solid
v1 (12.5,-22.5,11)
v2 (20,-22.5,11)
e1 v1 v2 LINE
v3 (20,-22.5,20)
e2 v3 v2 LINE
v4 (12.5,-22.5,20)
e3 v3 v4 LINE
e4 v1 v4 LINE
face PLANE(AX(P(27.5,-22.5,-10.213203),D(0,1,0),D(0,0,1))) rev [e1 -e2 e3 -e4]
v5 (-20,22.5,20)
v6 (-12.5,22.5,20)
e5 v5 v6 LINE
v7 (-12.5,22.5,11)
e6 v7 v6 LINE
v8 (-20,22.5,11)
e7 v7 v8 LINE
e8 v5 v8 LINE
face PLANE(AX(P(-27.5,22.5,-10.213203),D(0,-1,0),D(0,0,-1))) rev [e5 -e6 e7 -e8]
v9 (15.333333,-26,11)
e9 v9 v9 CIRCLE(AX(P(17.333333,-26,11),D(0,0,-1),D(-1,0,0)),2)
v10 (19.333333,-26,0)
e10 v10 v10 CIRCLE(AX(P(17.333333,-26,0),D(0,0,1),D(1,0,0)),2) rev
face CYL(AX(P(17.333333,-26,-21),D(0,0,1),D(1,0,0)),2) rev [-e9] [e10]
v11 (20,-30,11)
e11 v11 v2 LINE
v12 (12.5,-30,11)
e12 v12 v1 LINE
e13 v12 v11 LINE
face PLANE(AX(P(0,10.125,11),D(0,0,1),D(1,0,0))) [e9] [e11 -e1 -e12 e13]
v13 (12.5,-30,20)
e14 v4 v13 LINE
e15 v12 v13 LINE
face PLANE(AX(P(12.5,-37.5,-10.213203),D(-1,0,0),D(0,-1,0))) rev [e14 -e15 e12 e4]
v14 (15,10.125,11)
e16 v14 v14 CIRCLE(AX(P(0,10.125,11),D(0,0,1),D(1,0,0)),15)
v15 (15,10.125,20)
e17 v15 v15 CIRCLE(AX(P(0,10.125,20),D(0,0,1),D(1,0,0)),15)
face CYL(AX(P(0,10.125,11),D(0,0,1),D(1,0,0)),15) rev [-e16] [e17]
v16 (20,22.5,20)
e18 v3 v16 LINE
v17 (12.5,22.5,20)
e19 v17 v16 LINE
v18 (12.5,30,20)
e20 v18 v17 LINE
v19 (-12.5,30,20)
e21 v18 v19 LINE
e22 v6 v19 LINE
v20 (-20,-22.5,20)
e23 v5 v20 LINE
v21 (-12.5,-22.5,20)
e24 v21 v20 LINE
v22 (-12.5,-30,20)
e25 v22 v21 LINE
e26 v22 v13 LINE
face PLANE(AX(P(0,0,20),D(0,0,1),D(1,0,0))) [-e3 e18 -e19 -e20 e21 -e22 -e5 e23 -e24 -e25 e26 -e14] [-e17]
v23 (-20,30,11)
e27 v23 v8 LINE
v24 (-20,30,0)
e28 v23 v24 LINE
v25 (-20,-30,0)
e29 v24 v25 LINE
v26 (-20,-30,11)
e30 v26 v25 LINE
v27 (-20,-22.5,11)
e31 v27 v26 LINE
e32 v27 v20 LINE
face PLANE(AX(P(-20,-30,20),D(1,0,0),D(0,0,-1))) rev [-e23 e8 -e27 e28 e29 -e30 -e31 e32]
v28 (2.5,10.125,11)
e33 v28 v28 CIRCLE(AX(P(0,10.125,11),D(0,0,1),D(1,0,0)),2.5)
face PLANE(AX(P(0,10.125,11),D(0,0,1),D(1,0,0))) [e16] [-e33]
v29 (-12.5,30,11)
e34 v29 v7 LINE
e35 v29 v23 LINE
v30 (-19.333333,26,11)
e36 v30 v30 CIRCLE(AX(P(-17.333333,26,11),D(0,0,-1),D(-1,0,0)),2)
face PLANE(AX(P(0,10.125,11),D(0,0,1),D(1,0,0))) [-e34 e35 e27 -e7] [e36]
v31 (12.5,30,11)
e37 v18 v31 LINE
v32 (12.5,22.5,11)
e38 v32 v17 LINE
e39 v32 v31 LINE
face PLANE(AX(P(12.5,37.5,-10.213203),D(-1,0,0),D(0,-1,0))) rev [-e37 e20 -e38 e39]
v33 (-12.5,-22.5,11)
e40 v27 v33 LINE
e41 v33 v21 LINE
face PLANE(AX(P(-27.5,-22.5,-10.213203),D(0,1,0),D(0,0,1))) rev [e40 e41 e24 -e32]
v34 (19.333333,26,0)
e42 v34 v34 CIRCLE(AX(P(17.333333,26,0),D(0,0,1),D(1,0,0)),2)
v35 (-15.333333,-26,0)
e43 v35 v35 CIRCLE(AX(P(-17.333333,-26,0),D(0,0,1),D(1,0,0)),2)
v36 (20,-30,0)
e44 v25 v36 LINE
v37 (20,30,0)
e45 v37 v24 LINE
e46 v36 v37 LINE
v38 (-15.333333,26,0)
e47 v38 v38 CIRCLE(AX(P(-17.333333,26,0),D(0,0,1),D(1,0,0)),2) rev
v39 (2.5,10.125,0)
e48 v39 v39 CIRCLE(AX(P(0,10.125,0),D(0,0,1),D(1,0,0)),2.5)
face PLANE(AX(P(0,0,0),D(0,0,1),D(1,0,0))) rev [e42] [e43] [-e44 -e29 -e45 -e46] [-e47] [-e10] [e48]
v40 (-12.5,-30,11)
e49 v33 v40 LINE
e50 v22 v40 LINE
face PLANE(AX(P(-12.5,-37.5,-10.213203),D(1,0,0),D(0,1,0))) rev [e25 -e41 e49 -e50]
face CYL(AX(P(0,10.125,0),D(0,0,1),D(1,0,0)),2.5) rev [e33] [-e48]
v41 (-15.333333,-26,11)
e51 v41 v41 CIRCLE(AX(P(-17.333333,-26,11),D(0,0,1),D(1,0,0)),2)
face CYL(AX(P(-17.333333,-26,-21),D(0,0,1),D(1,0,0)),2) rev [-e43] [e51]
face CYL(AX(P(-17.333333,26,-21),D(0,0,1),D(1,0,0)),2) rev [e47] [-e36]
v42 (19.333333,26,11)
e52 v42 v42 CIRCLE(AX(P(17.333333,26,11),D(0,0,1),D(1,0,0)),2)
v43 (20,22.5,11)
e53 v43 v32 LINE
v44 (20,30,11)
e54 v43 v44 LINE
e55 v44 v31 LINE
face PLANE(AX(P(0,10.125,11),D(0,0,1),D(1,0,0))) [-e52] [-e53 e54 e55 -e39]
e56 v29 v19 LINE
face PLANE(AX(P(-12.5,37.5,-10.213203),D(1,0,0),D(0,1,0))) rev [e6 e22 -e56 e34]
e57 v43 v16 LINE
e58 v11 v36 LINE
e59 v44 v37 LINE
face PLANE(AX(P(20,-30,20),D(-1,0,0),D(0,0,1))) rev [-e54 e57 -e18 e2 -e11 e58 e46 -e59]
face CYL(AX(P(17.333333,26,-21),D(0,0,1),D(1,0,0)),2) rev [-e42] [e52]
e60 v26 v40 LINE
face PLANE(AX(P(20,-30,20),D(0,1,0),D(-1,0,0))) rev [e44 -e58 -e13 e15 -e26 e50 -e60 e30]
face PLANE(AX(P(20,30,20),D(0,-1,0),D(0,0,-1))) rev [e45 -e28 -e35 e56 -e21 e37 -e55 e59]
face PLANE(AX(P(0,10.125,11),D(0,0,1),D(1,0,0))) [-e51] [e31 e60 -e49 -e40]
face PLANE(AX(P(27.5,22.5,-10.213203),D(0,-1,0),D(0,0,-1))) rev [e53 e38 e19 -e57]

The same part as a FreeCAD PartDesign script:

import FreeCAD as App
import Part
import Sketcher
from FreeCAD import Vector

doc = App.newDocument("Part")
params = doc.addObject("Spreadsheet::Sheet", "Params")
for row, (alias, value) in enumerate([
    ("sketch1_width", "40 mm"),
    ("sketch1_height", "60 mm"),
    ("pad1_length", "20 mm"),
    ("sketch2_diameter", "30 mm"),
    ("pocket1_length", "9 mm"),
    ("sketch3_diameter", "4 mm"),
    ("pocket2_length", "32 mm"),
    ("sketch4_width", "15 mm"),
    ("pocket3_length", "9 mm"),
    ("sketch5_diameter", "5 mm"),
    ("pocket4_length", "11 mm"),
], start=1):
    params.set(f"A{row}", alias)
    params.set(f"B{row}", "=" + value)
    params.setAlias(f"B{row}", alias)

body = doc.addObject("PartDesign::Body", "Body")

sketch1 = body.newObject("Sketcher::SketchObject", "Sketch")
sketch1.AttachmentSupport = (doc.getObject("XY_Plane"), [""])
sketch1.MapMode = "FlatFace"
sketch1.addGeometry(Part.LineSegment(Vector(-20, 30, 0), Vector(-20, -30, 0)), False)
sketch1.addGeometry(Part.LineSegment(Vector(-20, -30, 0), Vector(20, -30, 0)), False)
sketch1.addGeometry(Part.LineSegment(Vector(20, -30, 0), Vector(20, 30, 0)), False)
sketch1.addGeometry(Part.LineSegment(Vector(20, 30, 0), Vector(-20, 30, 0)), False)
sketch1.addConstraint(Sketcher.Constraint("Coincident", 0, 2, 1, 1))
sketch1.addConstraint(Sketcher.Constraint("Coincident", 1, 2, 2, 1))
sketch1.addConstraint(Sketcher.Constraint("Coincident", 2, 2, 3, 1))
sketch1.addConstraint(Sketcher.Constraint("Coincident", 3, 2, 0, 1))
sketch1.addConstraint(Sketcher.Constraint("Vertical", 0))
sketch1.addConstraint(Sketcher.Constraint("Horizontal", 1))
sketch1.addConstraint(Sketcher.Constraint("Vertical", 2))
sketch1.addConstraint(Sketcher.Constraint("Horizontal", 3))
sketch1.addConstraint(Sketcher.Constraint("Symmetric", 0, 2, 2, 2, -1, 1))
sketch1.addConstraint(Sketcher.Constraint("DistanceX", 1, 1, 1, 2, 40.0))
sketch1.addConstraint(Sketcher.Constraint("DistanceY", 0, 2, 0, 1, 60.0))
sketch1.setExpression("Constraints[9]", "Params.sketch1_width")
sketch1.setExpression("Constraints[10]", "Params.sketch1_height")
pad1 = body.newObject("PartDesign::Pad", "Pad")
pad1.Profile = sketch1
pad1.setExpression("Length", "Params.pad1_length")

sketch2 = body.newObject("Sketcher::SketchObject", "Sketch001")
sketch2.AttachmentSupport = (doc.getObject("XY_Plane"), [""])
sketch2.MapMode = "FlatFace"
sketch2.AttachmentOffset = App.Placement(Vector(0, 0, 20), App.Rotation())
sketch2.addGeometry(Part.Circle(Vector(0, 10, 0), Vector(0, 0, 1), 15), False)
sketch2.addConstraint(Sketcher.Constraint("PointOnObject", 0, 3, -2))
sketch2.addConstraint(Sketcher.Constraint("Diameter", 0, 30.0))
sketch2.addConstraint(Sketcher.Constraint("DistanceY", -1, 1, 0, 3, 10.125))
sketch2.setExpression("Constraints[1]", "Params.sketch2_diameter")
pocket1 = body.newObject("PartDesign::Pocket", "Pocket")
pocket1.Profile = sketch2
pocket1.setExpression("Length", "Params.pocket1_length")

sketch3 = body.newObject("Sketcher::SketchObject", "Sketch002")
sketch3.AttachmentSupport = (doc.getObject("XY_Plane"), [""])
sketch3.MapMode = "FlatFace"
sketch3.AttachmentOffset = App.Placement(Vector(0, 0, 11), App.Rotation())
sketch3.addGeometry(Part.Circle(Vector(17.3, 26, 0), Vector(0, 0, 1), 2), False)
sketch3.addGeometry(Part.Circle(Vector(-17.3, 26, 0), Vector(0, 0, 1), 2), False)
sketch3.addGeometry(Part.Circle(Vector(17.3, -26, 0), Vector(0, 0, 1), 2), False)
sketch3.addGeometry(Part.Circle(Vector(-17.3, -26, 0), Vector(0, 0, 1), 2), False)
sketch3.addConstraint(Sketcher.Constraint("Equal", 0, 1))
sketch3.addConstraint(Sketcher.Constraint("Equal", 1, 2))
sketch3.addConstraint(Sketcher.Constraint("Equal", 2, 3))
sketch3.addConstraint(Sketcher.Constraint("Symmetric", 1, 3, 2, 3, -1, 1))
sketch3.addConstraint(Sketcher.Constraint("Symmetric", 0, 3, 3, 3, -1, 1))
sketch3.addConstraint(Sketcher.Constraint("Symmetric", 0, 3, 1, 3, -2))
sketch3.addConstraint(Sketcher.Constraint("Diameter", 0, 4.0))
sketch3.addConstraint(Sketcher.Constraint("DistanceY", -1, 1, 0, 3, 26.0))
sketch3.addConstraint(Sketcher.Constraint("DistanceX", -1, 1, 0, 3, 17.333333))
sketch3.setExpression("Constraints[6]", "Params.sketch3_diameter")
pocket2 = body.newObject("PartDesign::Pocket", "Pocket001")
pocket2.Profile = sketch3
pocket2.setExpression("Length", "Params.pocket2_length")

sketch4 = body.newObject("Sketcher::SketchObject", "Sketch003")
sketch4.AttachmentSupport = (doc.getObject("XY_Plane"), [""])
sketch4.MapMode = "FlatFace"
sketch4.AttachmentOffset = App.Placement(Vector(0, 0, 20), App.Rotation())
sketch4.addGeometry(Part.LineSegment(Vector(-28, 38, 0), Vector(-28, 22, 0)), False)
sketch4.addGeometry(Part.LineSegment(Vector(-28, 22, 0), Vector(-12, 22, 0)), False)
sketch4.addGeometry(Part.LineSegment(Vector(-12, 22, 0), Vector(-12, 38, 0)), False)
sketch4.addGeometry(Part.LineSegment(Vector(-12, 38, 0), Vector(-28, 38, 0)), False)
sketch4.addGeometry(Part.LineSegment(Vector(12, 38, 0), Vector(12, 22, 0)), False)
sketch4.addGeometry(Part.LineSegment(Vector(12, 22, 0), Vector(28, 22, 0)), False)
sketch4.addGeometry(Part.LineSegment(Vector(28, 22, 0), Vector(28, 38, 0)), False)
sketch4.addGeometry(Part.LineSegment(Vector(28, 38, 0), Vector(12, 38, 0)), False)
sketch4.addGeometry(Part.LineSegment(Vector(-28, -22, 0), Vector(-28, -38, 0)), False)
sketch4.addGeometry(Part.LineSegment(Vector(-28, -38, 0), Vector(-12, -38, 0)), False)
sketch4.addGeometry(Part.LineSegment(Vector(-12, -38, 0), Vector(-12, -22, 0)), False)
sketch4.addGeometry(Part.LineSegment(Vector(-12, -22, 0), Vector(-28, -22, 0)), False)
sketch4.addGeometry(Part.LineSegment(Vector(12, -22, 0), Vector(12, -38, 0)), False)
sketch4.addGeometry(Part.LineSegment(Vector(12, -38, 0), Vector(28, -38, 0)), False)
sketch4.addGeometry(Part.LineSegment(Vector(28, -38, 0), Vector(28, -22, 0)), False)
sketch4.addGeometry(Part.LineSegment(Vector(28, -22, 0), Vector(12, -22, 0)), False)
sketch4.addConstraint(Sketcher.Constraint("Coincident", 0, 2, 1, 1))
sketch4.addConstraint(Sketcher.Constraint("Coincident", 1, 2, 2, 1))
sketch4.addConstraint(Sketcher.Constraint("Coincident", 2, 2, 3, 1))
sketch4.addConstraint(Sketcher.Constraint("Coincident", 3, 2, 0, 1))
sketch4.addConstraint(Sketcher.Constraint("Coincident", 4, 2, 5, 1))
sketch4.addConstraint(Sketcher.Constraint("Coincident", 5, 2, 6, 1))
sketch4.addConstraint(Sketcher.Constraint("Coincident", 6, 2, 7, 1))
sketch4.addConstraint(Sketcher.Constraint("Coincident", 7, 2, 4, 1))
sketch4.addConstraint(Sketcher.Constraint("Coincident", 8, 2, 9, 1))
sketch4.addConstraint(Sketcher.Constraint("Coincident", 9, 2, 10, 1))
sketch4.addConstraint(Sketcher.Constraint("Coincident", 10, 2, 11, 1))
sketch4.addConstraint(Sketcher.Constraint("Coincident", 11, 2, 8, 1))
sketch4.addConstraint(Sketcher.Constraint("Coincident", 12, 2, 13, 1))
sketch4.addConstraint(Sketcher.Constraint("Coincident", 13, 2, 14, 1))
sketch4.addConstraint(Sketcher.Constraint("Coincident", 14, 2, 15, 1))
sketch4.addConstraint(Sketcher.Constraint("Coincident", 15, 2, 12, 1))
sketch4.addConstraint(Sketcher.Constraint("Vertical", 0))
sketch4.addConstraint(Sketcher.Constraint("Horizontal", 1))
sketch4.addConstraint(Sketcher.Constraint("Vertical", 2))
sketch4.addConstraint(Sketcher.Constraint("Horizontal", 3))
sketch4.addConstraint(Sketcher.Constraint("Vertical", 4))
sketch4.addConstraint(Sketcher.Constraint("Horizontal", 5))
sketch4.addConstraint(Sketcher.Constraint("Vertical", 6))
sketch4.addConstraint(Sketcher.Constraint("Horizontal", 7))
sketch4.addConstraint(Sketcher.Constraint("Vertical", 8))
sketch4.addConstraint(Sketcher.Constraint("Horizontal", 9))
sketch4.addConstraint(Sketcher.Constraint("Vertical", 10))
sketch4.addConstraint(Sketcher.Constraint("Horizontal", 11))
sketch4.addConstraint(Sketcher.Constraint("Vertical", 12))
sketch4.addConstraint(Sketcher.Constraint("Horizontal", 13))
sketch4.addConstraint(Sketcher.Constraint("Vertical", 14))
sketch4.addConstraint(Sketcher.Constraint("Horizontal", 15))
sketch4.addConstraint(Sketcher.Constraint("Symmetric", 6, 2, 8, 2, -1, 1))
sketch4.addConstraint(Sketcher.Constraint("Symmetric", 4, 2, 10, 2, -1, 1))
sketch4.addConstraint(Sketcher.Constraint("Symmetric", 2, 2, 12, 2, -1, 1))
sketch4.addConstraint(Sketcher.Constraint("Symmetric", 0, 2, 14, 2, -1, 1))
sketch4.addConstraint(Sketcher.Constraint("Symmetric", 1, 2, 4, 2, -2))
sketch4.addConstraint(Sketcher.Constraint("Symmetric", 3, 2, 6, 2, -2))
sketch4.addConstraint(Sketcher.Constraint("Equal", 15, 0))
sketch4.addConstraint(Sketcher.Constraint("DistanceX", 1, 1, 1, 2, 15.0))
sketch4.addConstraint(Sketcher.Constraint("DistanceX", 1, 2, 4, 2, 25.0))
sketch4.addConstraint(Sketcher.Constraint("DistanceY", 8, 2, 0, 2, 60.0))
sketch4.setExpression("Constraints[39]", "Params.sketch4_width")
pocket3 = body.newObject("PartDesign::Pocket", "Pocket002")
pocket3.Profile = sketch4
pocket3.setExpression("Length", "Params.pocket3_length")

sketch5 = body.newObject("Sketcher::SketchObject", "Sketch004")
sketch5.AttachmentSupport = (doc.getObject("XY_Plane"), [""])
sketch5.MapMode = "FlatFace"
sketch5.AttachmentOffset = App.Placement(Vector(0, 0, 11), App.Rotation())
sketch5.addGeometry(Part.Circle(Vector(0, 10.1, 0), Vector(0, 0, 1), 2.5), False)
sketch5.addConstraint(Sketcher.Constraint("PointOnObject", 0, 3, -2))
sketch5.addConstraint(Sketcher.Constraint("Diameter", 0, 5.0))
sketch5.addConstraint(Sketcher.Constraint("DistanceY", -1, 1, 0, 3, 10.125))
sketch5.setExpression("Constraints[1]", "Params.sketch5_diameter")
pocket4 = body.newObject("PartDesign::Pocket", "Pocket003")
pocket4.Profile = sketch5
pocket4.setExpression("Length", "Params.pocket4_length")

doc.recompute()
